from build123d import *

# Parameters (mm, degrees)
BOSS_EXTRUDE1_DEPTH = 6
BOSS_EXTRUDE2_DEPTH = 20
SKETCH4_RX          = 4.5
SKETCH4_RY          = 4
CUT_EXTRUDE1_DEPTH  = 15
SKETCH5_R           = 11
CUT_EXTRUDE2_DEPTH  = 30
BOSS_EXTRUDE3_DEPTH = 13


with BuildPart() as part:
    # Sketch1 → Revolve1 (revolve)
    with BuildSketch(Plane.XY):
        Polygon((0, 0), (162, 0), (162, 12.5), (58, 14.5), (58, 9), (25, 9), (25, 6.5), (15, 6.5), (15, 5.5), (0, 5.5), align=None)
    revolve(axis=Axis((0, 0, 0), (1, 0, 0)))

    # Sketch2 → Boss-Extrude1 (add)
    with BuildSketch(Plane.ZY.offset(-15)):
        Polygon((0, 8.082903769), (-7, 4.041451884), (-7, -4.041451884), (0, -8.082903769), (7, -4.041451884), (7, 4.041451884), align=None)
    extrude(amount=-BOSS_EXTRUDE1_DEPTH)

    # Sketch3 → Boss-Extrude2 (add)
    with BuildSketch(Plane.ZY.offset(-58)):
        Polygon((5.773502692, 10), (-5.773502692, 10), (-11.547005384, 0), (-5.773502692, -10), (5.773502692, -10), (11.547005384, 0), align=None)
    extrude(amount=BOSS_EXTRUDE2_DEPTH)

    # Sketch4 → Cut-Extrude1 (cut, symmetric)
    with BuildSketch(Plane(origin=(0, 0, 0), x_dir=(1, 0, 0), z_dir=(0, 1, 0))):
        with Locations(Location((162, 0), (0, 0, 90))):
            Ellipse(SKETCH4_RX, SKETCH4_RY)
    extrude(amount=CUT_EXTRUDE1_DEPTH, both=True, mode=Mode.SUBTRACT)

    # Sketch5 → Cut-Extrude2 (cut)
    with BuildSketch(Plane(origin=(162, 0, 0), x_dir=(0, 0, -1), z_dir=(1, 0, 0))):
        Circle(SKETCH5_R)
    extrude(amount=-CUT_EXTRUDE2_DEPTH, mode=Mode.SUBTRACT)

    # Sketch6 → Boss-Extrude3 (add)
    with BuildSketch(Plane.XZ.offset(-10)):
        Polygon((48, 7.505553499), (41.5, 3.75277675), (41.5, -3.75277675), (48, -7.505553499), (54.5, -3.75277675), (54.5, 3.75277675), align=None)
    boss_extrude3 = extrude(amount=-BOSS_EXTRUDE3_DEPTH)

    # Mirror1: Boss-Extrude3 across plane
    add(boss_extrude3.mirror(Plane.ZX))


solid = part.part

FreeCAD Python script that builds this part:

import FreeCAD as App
import Part
import Sketcher
from FreeCAD import Vector
Q = App.Units.Quantity

doc = App.newDocument("Part")
body = doc.addObject("PartDesign::Body", "Body")

sketch1 = doc.addObject("Sketcher::SketchObject", "Sketch")
body.addObject(sketch1)
sketch1.AttachmentSupport = (doc.XY_Plane, [""])
sketch1.MapMode = "FlatFace"
sketch1.addGeometry([
    Part.LineSegment(Vector(0, 0, 0), Vector(162, 0, 0)),
    Part.LineSegment(Vector(162, 0, 0), Vector(162, 12.5, 0)),
    Part.LineSegment(Vector(162, 12.5, 0), Vector(58, 14.5, 0)),
    Part.LineSegment(Vector(58, 14.5, 0), Vector(58, 9, 0)),
    Part.LineSegment(Vector(58, 9, 0), Vector(25, 9, 0)),
    Part.LineSegment(Vector(25, 9, 0), Vector(25, 6.5, 0)),
    Part.LineSegment(Vector(25, 6.5, 0), Vector(15, 6.5, 0)),
    Part.LineSegment(Vector(15, 6.5, 0), Vector(15, 5.5, 0)),
    Part.LineSegment(Vector(15, 5.5, 0), Vector(0, 5.5, 0)),
    Part.LineSegment(Vector(0, 5.5, 0), Vector(0, 0, 0)),
], False)
sketch1.addConstraint([
    Sketcher.Constraint("Coincident", 0, 2, 1, 1),
    Sketcher.Constraint("Coincident", 1, 2, 2, 1),
    Sketcher.Constraint("Coincident", 2, 2, 3, 1),
    Sketcher.Constraint("Coincident", 3, 2, 4, 1),
    Sketcher.Constraint("Coincident", 4, 2, 5, 1),
    Sketcher.Constraint("Coincident", 5, 2, 6, 1),
    Sketcher.Constraint("Coincident", 6, 2, 7, 1),
    Sketcher.Constraint("Coincident", 7, 2, 8, 1),
    Sketcher.Constraint("Coincident", 8, 2, 9, 1),
    Sketcher.Constraint("Coincident", 9, 2, 0, 1),
    Sketcher.Constraint("Horizontal", 0),
    Sketcher.Constraint("Vertical", 1),
    Sketcher.Constraint("Vertical", 3),
    Sketcher.Constraint("Horizontal", 4),
    Sketcher.Constraint("Vertical", 5),
    Sketcher.Constraint("Horizontal", 6),
    Sketcher.Constraint("Vertical", 7),
    Sketcher.Constraint("Horizontal", 8),
    Sketcher.Constraint("Vertical", 9),
    Sketcher.Constraint("Coincident", 9, 2, -1, 1),
    Sketcher.Constraint("Equal", 3, 9),
    Sketcher.Constraint("DistanceX", 0, 1, 0, 2, 162.0),
    Sketcher.Constraint("DistanceX", 4, 2, 4, 1, 33.0),
    Sketcher.Constraint("DistanceX", 6, 2, 6, 1, 10.0),
    Sketcher.Constraint("DistanceX", 8, 2, 8, 1, 15.0),
    Sketcher.Constraint("DistanceY", 7, 2, 7, 1, 1.0),
    Sketcher.Constraint("DistanceY", 1, 1, 1, 2, 12.5),
    Sketcher.Constraint("DistanceY", 3, 2, 3, 1, 5.5),
    Sketcher.Constraint("DistanceY", 5, 2, 5, 1, 2.5),
])
revolution = doc.addObject("PartDesign::Revolution", "Revolution")
body.addObject(revolution)
revolution.Profile = sketch1
revolution.ReferenceAxis = (sketch1, ["H_Axis"])
revolution.Angle = 360

sketch2 = doc.addObject("Sketcher::SketchObject", "Sketch001")
body.addObject(sketch2)
sketch2.AttachmentSupport = (doc.YZ_Plane, [""])
sketch2.MapMode = "FlatFace"
sketch2.AttachmentOffset = App.Placement(Vector(0, 0, 15), App.Rotation())
sketch2.addGeometry([
    Part.LineSegment(Vector(8, 0, 0), Vector(4, -7, 0)),
    Part.LineSegment(Vector(4, -7, 0), Vector(-4, -7, 0)),
    Part.LineSegment(Vector(-4, -7, 0), Vector(-8, 0, 0)),
    Part.LineSegment(Vector(-8, 0, 0), Vector(-4, 7, 0)),
    Part.LineSegment(Vector(-4, 7, 0), Vector(4, 7, 0)),
    Part.LineSegment(Vector(4, 7, 0), Vector(8, 0, 0)),
], False)
sketch2.addConstraint([
    Sketcher.Constraint("Coincident", 0, 2, 1, 1),
    Sketcher.Constraint("Coincident", 1, 2, 2, 1),
    Sketcher.Constraint("Coincident", 2, 2, 3, 1),
    Sketcher.Constraint("Coincident", 3, 2, 4, 1),
    Sketcher.Constraint("Coincident", 4, 2, 5, 1),
    Sketcher.Constraint("Coincident", 5, 2, 0, 1),
    Sketcher.Constraint("Horizontal", 1),
    Sketcher.Constraint("Horizontal", 4),
    Sketcher.Constraint("Symmetric", 0, 2, 3, 2, -1, 1),
    Sketcher.Constraint("Symmetric", 2, 2, 5, 2, -1, 1),
    Sketcher.Constraint("PointOnObject", 2, 2, -1),
    Sketcher.Constraint("Parallel", 2, 5),
    Sketcher.Constraint("Vertical", 1, 2, 3, 2),
    Sketcher.Constraint("Angle", 0, Q("-120 deg")),
    Sketcher.Constraint("DistanceY", 0, 2, -1, 1, 7.0),
    Sketcher.Constraint("DistanceX", 1, 2, 1, 1, 8.082904),
])
pad1 = doc.addObject("PartDesign::Pad", "Pad")
body.addObject(pad1)
pad1.Profile = sketch2
pad1.Length = 6

sketch3 = doc.addObject("Sketcher::SketchObject", "Sketch002")
body.addObject(sketch3)
sketch3.AttachmentSupport = (doc.YZ_Plane, [""])
sketch3.MapMode = "FlatFace"
sketch3.AttachmentOffset = App.Placement(Vector(0, 0, 58), App.Rotation())
sketch3.addGeometry([
    Part.LineSegment(Vector(10, 6, 0), Vector(10, -6, 0)),
    Part.LineSegment(Vector(10, -6, 0), Vector(0, -12, 0)),
    Part.LineSegment(Vector(0, -12, 0), Vector(-10, -6, 0)),
    Part.LineSegment(Vector(-10, -6, 0), Vector(-10, 6, 0)),
    Part.LineSegment(Vector(-10, 6, 0), Vector(0, 12, 0)),
    Part.LineSegment(Vector(0, 12, 0), Vector(10, 6, 0)),
], False)
sketch3.addConstraint([
    Sketcher.Constraint("Coincident", 0, 2, 1, 1),
    Sketcher.Constraint("Coincident", 1, 2, 2, 1),
    Sketcher.Constraint("Coincident", 2, 2, 3, 1),
    Sketcher.Constraint("Coincident", 3, 2, 4, 1),
    Sketcher.Constraint("Coincident", 4, 2, 5, 1),
    Sketcher.Constraint("Coincident", 5, 2, 0, 1),
    Sketcher.Constraint("Vertical", 0),
    Sketcher.Constraint("Vertical", 3),
    Sketcher.Constraint("Symmetric", 0, 2, 3, 2, -1, 1),
    Sketcher.Constraint("Symmetric", 1, 2, 4, 2, -1, 1),
    Sketcher.Constraint("PointOnObject", 1, 2, -2),
    Sketcher.Constraint("Parallel", 2, 5),
    Sketcher.Constraint("Horizontal", 0, 2, 2, 2),
    Sketcher.Constraint("Angle", 1, Q("-150 deg")),
    Sketcher.Constraint("DistanceX", -1, 1, 0, 2, 10.0),
    Sketcher.Constraint("DistanceY", 0, 2, 0, 1, 11.547005),
])
pad2 = doc.addObject("PartDesign::Pad", "Pad001")
body.addObject(pad2)
pad2.Profile = sketch3
pad2.Length = 20
pad2.Reversed = True

sketch4 = doc.addObject("Sketcher::SketchObject", "Sketch003")
body.addObject(sketch4)
sketch4.AttachmentSupport = (doc.XZ_Plane, [""])
sketch4.MapMode = "FlatFace"
sketch4.addGeometry(Part.Ellipse(Vector(162, -4.5, 0), Vector(166, 0, 0), Vector(162, 0, 0)), False)
sketch4.addConstraint(Sketcher.Constraint("Block", 0))
pocket1 = doc.addObject("PartDesign::Pocket", "Pocket")
body.addObject(pocket1)
pocket1.Profile = sketch4
pocket1.Length = 30
pocket1.Midplane = True

sketch5 = doc.addObject("Sketcher::SketchObject", "Sketch004")
body.addObject(sketch5)
sketch5.AttachmentSupport = (doc.YZ_Plane, [""])
sketch5.MapMode = "FlatFace"
sketch5.AttachmentOffset = App.Placement(Vector(0, 0, 162), App.Rotation())
sketch5.addGeometry(Part.Circle(Vector(0, 0, 0), Vector(0, 0, 1), 11), False)
sketch5.addConstraint([
    Sketcher.Constraint("Coincident", 0, 3, -1, 1),
    Sketcher.Constraint("Diameter", 0, 22.0),
])
pocket2 = doc.addObject("PartDesign::Pocket", "Pocket001")
body.addObject(pocket2)
pocket2.Profile = sketch5
pocket2.Length = 30

sketch6 = doc.addObject("Sketcher::SketchObject", "Sketch005")
body.addObject(sketch6)
sketch6.AttachmentSupport = (doc.XZ_Plane, [""])
sketch6.MapMode = "FlatFace"
sketch6.AttachmentOffset = App.Placement(Vector(0, 0, -10), App.Rotation())
sketch6.addGeometry([
    Part.LineSegment(Vector(48, 8, 0), Vector(42, 4, 0)),
    Part.LineSegment(Vector(42, 4, 0), Vector(42, -4, 0)),
    Part.LineSegment(Vector(42, -4, 0), Vector(48, -8, 0)),
    Part.LineSegment(Vector(48, -8, 0), Vector(54, -4, 0)),
    Part.LineSegment(Vector(54, -4, 0), Vector(54, 4, 0)),
    Part.LineSegment(Vector(54, 4, 0), Vector(48, 8, 0)),
], False)
sketch6.addConstraint([
    Sketcher.Constraint("Coincident", 0, 2, 1, 1),
    Sketcher.Constraint("Coincident", 1, 2, 2, 1),
    Sketcher.Constraint("Coincident", 2, 2, 3, 1),
    Sketcher.Constraint("Coincident", 3, 2, 4, 1),
    Sketcher.Constraint("Coincident", 4, 2, 5, 1),
    Sketcher.Constraint("Coincident", 5, 2, 0, 1),
    Sketcher.Constraint("Vertical", 1),
    Sketcher.Constraint("Vertical", 4),
    Sketcher.Constraint("Symmetric", 2, 2, 5, 2, -1),
    Sketcher.Constraint("Parallel", 0, 3),
    Sketcher.Constraint("Parallel", 2, 5),
    Sketcher.Constraint("Horizontal", 1, 2, 3, 2),
    Sketcher.Constraint("Horizontal", 0, 2, 4, 2),
    Sketcher.Constraint("Angle", 0, Q("-150 deg")),
    Sketcher.Constraint("DistanceX", -1, 1, 2, 2, 48.0),
    Sketcher.Constraint("DistanceX", 1, 2, 3, 2, 13.0),
    Sketcher.Constraint("DistanceY", 1, 2, 1, 1, 7.505554),
])
pad3 = doc.addObject("PartDesign::Pad", "Pad002")
body.addObject(pad3)
pad3.Profile = sketch6
pad3.Length = 13
pad3.Reversed = True
doc.recompute()

mirrored = doc.addObject("PartDesign::Mirrored", "Mirrored")
body.addObject(mirrored)
mirrored.Originals = [pad3]
mirrored.MirrorPlane = (doc.XZ_Plane, [""])
body.Tip = mirrored

doc.recompute()
